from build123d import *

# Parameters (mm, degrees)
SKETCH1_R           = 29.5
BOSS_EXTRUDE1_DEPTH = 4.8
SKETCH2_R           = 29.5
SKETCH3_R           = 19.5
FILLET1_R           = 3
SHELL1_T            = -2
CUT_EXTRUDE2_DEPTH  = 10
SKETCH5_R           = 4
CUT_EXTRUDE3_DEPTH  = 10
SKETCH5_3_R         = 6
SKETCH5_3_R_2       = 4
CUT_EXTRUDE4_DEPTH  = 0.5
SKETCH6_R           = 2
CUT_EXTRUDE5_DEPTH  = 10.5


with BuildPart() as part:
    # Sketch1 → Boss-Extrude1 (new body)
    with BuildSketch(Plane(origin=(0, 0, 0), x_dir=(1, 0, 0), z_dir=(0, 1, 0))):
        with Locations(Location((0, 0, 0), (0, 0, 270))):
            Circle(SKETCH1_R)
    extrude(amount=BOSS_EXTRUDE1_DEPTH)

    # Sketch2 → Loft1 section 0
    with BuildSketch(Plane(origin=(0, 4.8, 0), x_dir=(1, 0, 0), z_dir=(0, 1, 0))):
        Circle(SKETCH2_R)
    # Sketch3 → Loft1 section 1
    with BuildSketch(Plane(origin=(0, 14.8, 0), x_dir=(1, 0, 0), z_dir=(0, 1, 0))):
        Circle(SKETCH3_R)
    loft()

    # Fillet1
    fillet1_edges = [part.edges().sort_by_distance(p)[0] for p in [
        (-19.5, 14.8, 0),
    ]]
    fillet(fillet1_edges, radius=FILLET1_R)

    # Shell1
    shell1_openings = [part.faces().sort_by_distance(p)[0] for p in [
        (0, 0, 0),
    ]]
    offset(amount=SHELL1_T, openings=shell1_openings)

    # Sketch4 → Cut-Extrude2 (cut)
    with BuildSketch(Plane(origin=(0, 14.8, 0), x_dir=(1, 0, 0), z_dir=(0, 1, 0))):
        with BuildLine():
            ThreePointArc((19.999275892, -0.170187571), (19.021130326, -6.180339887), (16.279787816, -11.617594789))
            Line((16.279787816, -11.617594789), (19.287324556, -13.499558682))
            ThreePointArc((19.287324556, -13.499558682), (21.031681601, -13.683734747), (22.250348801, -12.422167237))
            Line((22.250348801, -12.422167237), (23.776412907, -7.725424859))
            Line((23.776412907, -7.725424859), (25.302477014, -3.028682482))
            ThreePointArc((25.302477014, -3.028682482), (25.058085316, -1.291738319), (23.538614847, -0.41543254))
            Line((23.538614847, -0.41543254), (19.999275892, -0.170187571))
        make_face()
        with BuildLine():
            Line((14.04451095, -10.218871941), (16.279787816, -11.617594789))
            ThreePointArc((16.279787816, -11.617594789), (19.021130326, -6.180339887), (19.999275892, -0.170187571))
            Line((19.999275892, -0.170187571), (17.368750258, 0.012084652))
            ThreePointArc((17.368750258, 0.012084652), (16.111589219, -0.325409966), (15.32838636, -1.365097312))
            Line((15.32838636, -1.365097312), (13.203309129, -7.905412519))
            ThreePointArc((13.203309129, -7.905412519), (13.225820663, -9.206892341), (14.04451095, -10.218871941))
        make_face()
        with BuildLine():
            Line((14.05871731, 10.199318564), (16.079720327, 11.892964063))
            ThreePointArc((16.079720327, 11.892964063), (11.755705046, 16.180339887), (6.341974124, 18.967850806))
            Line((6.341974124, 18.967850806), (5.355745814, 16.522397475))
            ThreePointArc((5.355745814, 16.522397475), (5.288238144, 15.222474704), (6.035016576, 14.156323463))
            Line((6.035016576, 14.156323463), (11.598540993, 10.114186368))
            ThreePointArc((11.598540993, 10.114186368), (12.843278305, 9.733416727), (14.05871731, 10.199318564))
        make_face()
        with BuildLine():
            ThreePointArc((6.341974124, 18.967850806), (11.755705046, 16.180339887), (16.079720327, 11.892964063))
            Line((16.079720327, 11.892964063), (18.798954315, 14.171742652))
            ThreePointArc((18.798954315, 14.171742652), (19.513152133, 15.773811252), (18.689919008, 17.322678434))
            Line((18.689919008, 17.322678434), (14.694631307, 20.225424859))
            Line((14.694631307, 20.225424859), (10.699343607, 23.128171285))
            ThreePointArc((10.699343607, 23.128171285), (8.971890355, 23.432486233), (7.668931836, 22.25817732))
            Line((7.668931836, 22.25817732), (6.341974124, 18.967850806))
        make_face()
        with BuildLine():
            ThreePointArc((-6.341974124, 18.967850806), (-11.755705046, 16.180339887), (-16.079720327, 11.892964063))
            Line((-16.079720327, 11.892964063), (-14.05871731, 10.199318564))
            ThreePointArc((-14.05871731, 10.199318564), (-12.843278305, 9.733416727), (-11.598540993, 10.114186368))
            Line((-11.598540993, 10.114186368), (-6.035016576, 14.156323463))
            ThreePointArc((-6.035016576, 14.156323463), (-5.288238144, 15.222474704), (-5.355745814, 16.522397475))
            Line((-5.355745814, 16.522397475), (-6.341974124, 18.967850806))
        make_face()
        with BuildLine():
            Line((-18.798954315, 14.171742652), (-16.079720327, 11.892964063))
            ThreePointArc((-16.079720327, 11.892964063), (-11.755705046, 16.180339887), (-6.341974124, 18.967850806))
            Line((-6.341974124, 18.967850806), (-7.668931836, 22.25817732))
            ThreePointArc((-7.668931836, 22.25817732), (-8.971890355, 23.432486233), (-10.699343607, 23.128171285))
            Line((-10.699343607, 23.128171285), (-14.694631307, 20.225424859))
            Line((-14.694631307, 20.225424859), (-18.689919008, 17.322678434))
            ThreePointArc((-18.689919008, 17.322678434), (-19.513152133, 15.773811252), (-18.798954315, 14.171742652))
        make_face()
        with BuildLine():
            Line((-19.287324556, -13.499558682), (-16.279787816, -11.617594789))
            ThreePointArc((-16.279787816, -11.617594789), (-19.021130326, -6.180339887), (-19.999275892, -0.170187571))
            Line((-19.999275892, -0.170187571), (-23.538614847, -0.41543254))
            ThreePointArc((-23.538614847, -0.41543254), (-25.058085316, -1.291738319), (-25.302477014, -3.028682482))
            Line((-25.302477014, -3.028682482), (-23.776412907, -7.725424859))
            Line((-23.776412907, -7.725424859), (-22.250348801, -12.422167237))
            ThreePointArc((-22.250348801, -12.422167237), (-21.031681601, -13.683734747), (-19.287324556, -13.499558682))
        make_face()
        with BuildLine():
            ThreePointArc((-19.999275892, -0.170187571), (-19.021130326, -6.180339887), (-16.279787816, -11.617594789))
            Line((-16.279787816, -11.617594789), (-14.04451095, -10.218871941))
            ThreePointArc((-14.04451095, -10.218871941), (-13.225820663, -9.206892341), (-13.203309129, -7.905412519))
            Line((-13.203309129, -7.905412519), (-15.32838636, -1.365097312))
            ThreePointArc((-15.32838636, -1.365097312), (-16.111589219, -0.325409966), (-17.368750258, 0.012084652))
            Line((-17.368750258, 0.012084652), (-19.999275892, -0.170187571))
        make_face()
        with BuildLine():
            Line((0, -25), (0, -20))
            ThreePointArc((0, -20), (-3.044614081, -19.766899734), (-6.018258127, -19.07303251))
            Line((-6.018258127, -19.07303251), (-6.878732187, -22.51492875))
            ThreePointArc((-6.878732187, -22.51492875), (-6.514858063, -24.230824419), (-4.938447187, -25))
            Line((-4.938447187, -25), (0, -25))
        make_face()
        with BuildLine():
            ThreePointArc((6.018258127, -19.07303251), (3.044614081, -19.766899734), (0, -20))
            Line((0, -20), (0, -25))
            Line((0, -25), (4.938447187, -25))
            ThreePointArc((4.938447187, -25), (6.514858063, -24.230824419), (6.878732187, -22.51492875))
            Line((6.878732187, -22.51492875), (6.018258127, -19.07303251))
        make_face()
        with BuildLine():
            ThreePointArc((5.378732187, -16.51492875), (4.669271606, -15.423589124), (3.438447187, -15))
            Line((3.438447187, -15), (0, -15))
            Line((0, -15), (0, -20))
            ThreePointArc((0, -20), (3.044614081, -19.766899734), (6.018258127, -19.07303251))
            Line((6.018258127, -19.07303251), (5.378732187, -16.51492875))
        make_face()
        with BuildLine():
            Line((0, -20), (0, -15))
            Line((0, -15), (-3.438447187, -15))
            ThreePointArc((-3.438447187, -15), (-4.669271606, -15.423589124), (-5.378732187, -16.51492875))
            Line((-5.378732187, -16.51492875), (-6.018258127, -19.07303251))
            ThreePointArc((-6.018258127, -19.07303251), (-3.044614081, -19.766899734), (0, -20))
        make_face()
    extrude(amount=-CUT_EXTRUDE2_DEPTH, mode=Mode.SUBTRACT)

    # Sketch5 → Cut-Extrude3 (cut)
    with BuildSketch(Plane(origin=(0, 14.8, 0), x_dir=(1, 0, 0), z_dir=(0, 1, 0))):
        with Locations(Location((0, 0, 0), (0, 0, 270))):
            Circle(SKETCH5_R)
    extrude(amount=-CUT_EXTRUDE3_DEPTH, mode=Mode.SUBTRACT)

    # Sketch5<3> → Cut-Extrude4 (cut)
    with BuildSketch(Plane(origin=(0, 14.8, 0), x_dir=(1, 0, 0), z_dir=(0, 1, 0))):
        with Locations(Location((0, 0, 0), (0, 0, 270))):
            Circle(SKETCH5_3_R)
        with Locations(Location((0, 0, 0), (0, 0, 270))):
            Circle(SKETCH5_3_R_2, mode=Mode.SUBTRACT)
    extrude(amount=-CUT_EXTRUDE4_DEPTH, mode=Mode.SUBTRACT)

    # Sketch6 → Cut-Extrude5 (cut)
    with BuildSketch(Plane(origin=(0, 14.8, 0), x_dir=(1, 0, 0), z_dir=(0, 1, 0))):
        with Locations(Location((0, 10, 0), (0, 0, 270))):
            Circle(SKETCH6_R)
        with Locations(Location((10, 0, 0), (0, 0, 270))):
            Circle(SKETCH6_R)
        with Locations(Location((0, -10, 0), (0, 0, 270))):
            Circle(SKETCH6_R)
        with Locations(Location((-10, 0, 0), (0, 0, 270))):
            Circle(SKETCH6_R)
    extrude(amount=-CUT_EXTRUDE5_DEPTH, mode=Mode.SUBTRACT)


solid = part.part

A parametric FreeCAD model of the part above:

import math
import FreeCAD as App
import Part
import Sketcher
from FreeCAD import Vector
Q = App.Units.Quantity


def edges_at(feature, points):
    """Names of the edges that pass closest to the given points."""
    edges = feature.Shape.Edges
    near = lambda p: min(range(len(edges)), key=lambda i: edges[i].distToShape(Part.Vertex(*p))[0])
    return sorted({f"Edge{near(p) + 1}" for p in points})


def faces_at(feature, points):
    """Names of the faces that lie closest to the given points."""
    faces = feature.Shape.Faces
    near = lambda p: min(range(len(faces)), key=lambda i: faces[i].distToShape(Part.Vertex(*p))[0])
    return sorted({f"Face{near(p) + 1}" for p in points})

doc = App.newDocument("Part")
body = doc.addObject("PartDesign::Body", "Body")

# Sketch on XZ plane
sketch1 = body.newObject("Sketcher::SketchObject", "Sketch")
sketch1.AttachmentSupport = (doc.getObject("XZ_Plane"), [""])
sketch1.MapMode = "FlatFace"
sketch1.addGeometry(Part.Circle(Vector(0, 0, 0), Vector(0, 0, 1), 29.5), False)
sketch1.addConstraint([
    Sketcher.Constraint("Coincident", 0, 3, -1, 1),
    Sketcher.Constraint("Diameter", 0, 59.0),
])
pad1 = body.newObject("PartDesign::Pad", "Pad")
pad1.Profile = sketch1
pad1.Length = 4.8
pad1.Reversed = True

# Sketch on XZ plane
sketch2 = body.newObject("Sketcher::SketchObject", "Sketch001")
sketch2.AttachmentSupport = (doc.getObject("XZ_Plane"), [""])
sketch2.MapMode = "FlatFace"
sketch2.AttachmentOffset = App.Placement(Vector(0, 0, -4.8), App.Rotation())
sketch2.addGeometry(Part.Circle(Vector(0, 0, 0), Vector(0, 0, 1), 29.5), False)
sketch2.addConstraint([
    Sketcher.Constraint("Coincident", 0, 3, -1, 1),
    Sketcher.Constraint("Diameter", 0, 59.0),
])

# Sketch on XZ plane
sketch3 = body.newObject("Sketcher::SketchObject", "Sketch002")
sketch3.AttachmentSupport = (doc.getObject("XZ_Plane"), [""])
sketch3.MapMode = "FlatFace"
sketch3.AttachmentOffset = App.Placement(Vector(0, 0, -14.8), App.Rotation())
sketch3.addGeometry(Part.Circle(Vector(0, 0, 0), Vector(0, 0, 1), 19.5), False)
sketch3.addConstraint([
    Sketcher.Constraint("Coincident", 0, 3, -1, 1),
    Sketcher.Constraint("Diameter", 0, 39.0),
])

additiveloft = body.newObject("PartDesign::AdditiveLoft", "AdditiveLoft")
additiveloft.Profile = sketch2
additiveloft.Sections = [sketch3]
doc.recompute()

fillet = body.newObject("PartDesign::Fillet", "Fillet")
fillet.Base = (additiveloft, edges_at(additiveloft, [(-19.5, 14.8, 0)]))
fillet.Radius = 3
doc.recompute()

thickness = body.newObject("PartDesign::Thickness", "Thickness")
thickness.Base = (fillet, faces_at(fillet, [(0, 0, 0)]))
thickness.Value = 2
thickness.Reversed = True
thickness.Join = "Arc"

# Sketch on XZ plane
sketch4 = body.newObject("Sketcher::SketchObject", "Sketch003")
sketch4.AttachmentSupport = (doc.getObject("XZ_Plane"), [""])
sketch4.MapMode = "FlatFace"
sketch4.AttachmentOffset = App.Placement(Vector(0, 0, -14.8), App.Rotation())
sketch4.addGeometry([
    Part.LineSegment(Vector(16.279788, 11.617595, 0), Vector(19.287325, 13.499559, 0)),  # 0
    Part.ArcOfCircle(Part.Circle(Vector(20.348236, 11.804133, 0), Vector(0, 0, 1), 2), math.radians(18), math.radians(122.036243)),  # 1
    Part.LineSegment(Vector(22.250349, 12.422167, 0), Vector(23.776413, 7.725425, 0)),  # 2
    Part.LineSegment(Vector(23.776413, 7.725425, 0), Vector(25.302477, 3.028682, 0)),  # 3
    Part.ArcOfCircle(Part.Circle(Vector(23.400364, 2.410648, 0), Vector(0, 0, 1), 2), math.radians(-86.036243), math.radians(18)),  # 4
    Part.LineSegment(Vector(23.538615, 0.415433, 0), Vector(19.999276, 0.170188, 0)),  # 5
    Part.LineSegment(Vector(19.999276, 0.170188, 0), Vector(17.36875, -0.012085, 0)),  # 6
    Part.ArcOfCircle(Part.Circle(Vector(17.230499, 1.983131, 0), Vector(0, 0, 1), 2), math.radians(-162), math.radians(-86.036243)),  # 7
    Part.LineSegment(Vector(15.328386, 1.365097, 0), Vector(13.203309, 7.905413, 0)),  # 8
    Part.ArcOfCircle(Part.Circle(Vector(15.105422, 8.523447, 0), Vector(0, 0, 1), 2), math.radians(122.036243), math.radians(198)),  # 9
    Part.LineSegment(Vector(14.044511, 10.218872, 0), Vector(16.279788, 11.617595, 0)),  # 10
    Part.LineSegment(Vector(14.058717, -10.199319, 0), Vector(16.07972, -11.892964, 0)),  # 11
    Part.LineSegment(Vector(16.07972, -11.892964, 0), Vector(18.798954, -14.171743, 0)),  # 12
    Part.ArcOfCircle(Part.Circle(Vector(17.514349, -15.704644, 0), Vector(0, 0, 1), 2), math.radians(-54), math.radians(50.036243)),  # 13
    Part.LineSegment(Vector(18.689919, -17.322678, 0), Vector(14.694631, -20.225425, 0)),  # 14
    Part.LineSegment(Vector(14.694631, -20.225425, 0), Vector(10.699344, -23.128171, 0)),  # 15
    Part.ArcOfCircle(Part.Circle(Vector(9.523773, -21.510137, 0), Vector(0, 0, 1), 2), math.radians(-158.036243), math.radians(-54)),  # 16
    Part.LineSegment(Vector(7.668932, -22.258177, 0), Vector(6.341974, -18.967851, 0)),  # 17
    Part.LineSegment(Vector(6.341974, -18.967851, 0), Vector(5.355746, -16.522397, 0)),  # 18
    Part.ArcOfCircle(Part.Circle(Vector(7.210587, -15.774357, 0), Vector(0, 0, 1), 2), math.radians(126), math.radians(201.963757)),  # 19
    Part.LineSegment(Vector(6.035017, -14.156323, 0), Vector(11.598541, -10.114186, 0)),  # 20
    Part.ArcOfCircle(Part.Circle(Vector(12.774111, -11.73222, 0), Vector(0, 0, 1), 2), math.radians(50.036243), math.radians(126)),  # 21
    Part.LineSegment(Vector(-16.07972, -11.892964, 0), Vector(-14.058717, -10.199319, 0)),  # 22
    Part.ArcOfCircle(Part.Circle(Vector(-12.774111, -11.73222, 0), Vector(0, 0, 1), 2), math.radians(54), math.radians(129.963757)),  # 23
    Part.LineSegment(Vector(-11.598541, -10.114186, 0), Vector(-6.035017, -14.156323, 0)),  # 24
    Part.ArcOfCircle(Part.Circle(Vector(-7.210587, -15.774357, 0), Vector(0, 0, 1), 2), math.radians(-21.963757), math.radians(54)),  # 25
    Part.LineSegment(Vector(-5.355746, -16.522397, 0), Vector(-6.341974, -18.967851, 0)),  # 26
    Part.LineSegment(Vector(-6.341974, -18.967851, 0), Vector(-7.668932, -22.258177, 0)),  # 27
    Part.ArcOfCircle(Part.Circle(Vector(-9.523773, -21.510137, 0), Vector(0, 0, 1), 2), math.radians(-126), math.radians(-21.963757)),  # 28
    Part.LineSegment(Vector(-10.699344, -23.128171, 0), Vector(-14.694631, -20.225425, 0)),  # 29
    Part.LineSegment(Vector(-14.694631, -20.225425, 0), Vector(-18.689919, -17.322678, 0)),  # 30
    Part.ArcOfCircle(Part.Circle(Vector(-17.514349, -15.704644, 0), Vector(0, 0, 1), 2), math.radians(129.963757), math.radians(234)),  # 31
    Part.LineSegment(Vector(-18.798954, -14.171743, 0), Vector(-16.07972, -11.892964, 0)),  # 32
    Part.LineSegment(Vector(-19.287325, 13.499559, 0), Vector(-16.279788, 11.617595, 0)),  # 33
    Part.LineSegment(Vector(-16.279788, 11.617595, 0), Vector(-14.044511, 10.218872, 0)),  # 34
    Part.ArcOfCircle(Part.Circle(Vector(-15.105422, 8.523447, 0), Vector(0, 0, 1), 2), math.radians(-18), math.radians(57.963757)),  # 35
    Part.LineSegment(Vector(-13.203309, 7.905413, 0), Vector(-15.328386, 1.365097, 0)),  # 36
    Part.ArcOfCircle(Part.Circle(Vector(-17.230499, 1.983131, 0), Vector(0, 0, 1), 2), math.radians(-93.963757), math.radians(-18)),  # 37
    Part.LineSegment(Vector(-17.36875, -0.012085, 0), Vector(-19.999276, 0.170188, 0)),  # 38
    Part.LineSegment(Vector(-19.999276, 0.170188, 0), Vector(-23.538615, 0.415433, 0)),  # 39
    Part.ArcOfCircle(Part.Circle(Vector(-23.400364, 2.410648, 0), Vector(0, 0, 1), 2), math.radians(162), math.radians(266.036243)),  # 40
    Part.LineSegment(Vector(-25.302477, 3.028682, 0), Vector(-23.776413, 7.725425, 0)),  # 41
    Part.LineSegment(Vector(-23.776413, 7.725425, 0), Vector(-22.250349, 12.422167, 0)),  # 42
    Part.ArcOfCircle(Part.Circle(Vector(-20.348236, 11.804133, 0), Vector(0, 0, 1), 2), math.radians(57.963757), math.radians(162)),  # 43
    Part.ArcOfCircle(Part.Circle(Vector(-4.938447, 23, 0), Vector(0, 0, 1), 2), math.radians(90), math.radians(194.036243)),  # 44
    Part.LineSegment(Vector(-4.938447, 25, 0), Vector(4.938447, 25, 0)),  # 45
    Part.ArcOfCircle(Part.Circle(Vector(4.938447, 23, 0), Vector(0, 0, 1), 2), math.radians(-14.036243), math.radians(90)),  # 46
    Part.LineSegment(Vector(6.878732, 22.514929, 0), Vector(5.378732, 16.514929, 0)),  # 47
    Part.ArcOfCircle(Part.Circle(Vector(3.438447, 17, 0), Vector(0, 0, 1), 2), math.radians(-90), math.radians(-14.036243)),  # 48
    Part.LineSegment(Vector(3.438447, 15, 0), Vector(-3.438447, 15, 0)),  # 49
    Part.ArcOfCircle(Part.Circle(Vector(-3.438447, 17, 0), Vector(0, 0, 1), 2), math.radians(-165.963757), math.radians(-90)),  # 50
    Part.LineSegment(Vector(-5.378732, 16.514929, 0), Vector(-6.878732, 22.514929, 0)),  # 51
], False)
sketch4.addConstraint([
    Sketcher.Constraint("Tangent", 0, 2, 1, 2),
    Sketcher.Constraint("Tangent", 1, 1, 2, 1),
    Sketcher.Constraint("Coincident", 2, 2, 3, 1),
    Sketcher.Constraint("Tangent", 3, 2, 4, 2),
    Sketcher.Constraint("Tangent", 4, 1, 5, 1),
    Sketcher.Constraint("Coincident", 5, 2, 6, 1),
    Sketcher.Constraint("Tangent", 6, 2, 7, 2),
    Sketcher.Constraint("Tangent", 7, 1, 8, 1),
    Sketcher.Constraint("Tangent", 8, 2, 9, 2),
    Sketcher.Constraint("Tangent", 9, 1, 10, 1),
    Sketcher.Constraint("Coincident", 10, 2, 0, 1),
    Sketcher.Constraint("Coincident", 11, 2, 12, 1),
    Sketcher.Constraint("Tangent", 12, 2, 13, 2),
    Sketcher.Constraint("Tangent", 13, 1, 14, 1),
    Sketcher.Constraint("Coincident", 14, 2, 15, 1),
    Sketcher.Constraint("Tangent", 15, 2, 16, 2),
    Sketcher.Constraint("Tangent", 16, 1, 17, 1),
    Sketcher.Constraint("Coincident", 17, 2, 18, 1),
    Sketcher.Constraint("Tangent", 18, 2, 19, 2),
    Sketcher.Constraint("Tangent", 19, 1, 20, 1),
    Sketcher.Constraint("Tangent", 20, 2, 21, 2),
    Sketcher.Constraint("Tangent", 21, 1, 11, 1),
    Sketcher.Constraint("Tangent", 22, 2, 23, 2),
    Sketcher.Constraint("Tangent", 23, 1, 24, 1),
    Sketcher.Constraint("Tangent", 24, 2, 25, 2),
    Sketcher.Constraint("Tangent", 25, 1, 26, 1),
    Sketcher.Constraint("Coincident", 26, 2, 27, 1),
    Sketcher.Constraint("Tangent", 27, 2, 28, 2),
    Sketcher.Constraint("Tangent", 28, 1, 29, 1),
    Sketcher.Constraint("Coincident", 29, 2, 30, 1),
    Sketcher.Constraint("Tangent", 30, 2, 31, 2),
    Sketcher.Constraint("Tangent", 31, 1, 32, 1),
    Sketcher.Constraint("Coincident", 32, 2, 22, 1),
    Sketcher.Constraint("Coincident", 33, 2, 34, 1),
    Sketcher.Constraint("Tangent", 34, 2, 35, 2),
    Sketcher.Constraint("Tangent", 35, 1, 36, 1),
    Sketcher.Constraint("Tangent", 36, 2, 37, 2),
    Sketcher.Constraint("Tangent", 37, 1, 38, 1),
    Sketcher.Constraint("Coincident", 38, 2, 39, 1),
    Sketcher.Constraint("Tangent", 39, 2, 40, 2),
    Sketcher.Constraint("Tangent", 40, 1, 41, 1),
    Sketcher.Constraint("Coincident", 41, 2, 42, 1),
    Sketcher.Constraint("Tangent", 42, 2, 43, 2),
    Sketcher.Constraint("Tangent", 43, 1, 33, 1),
    Sketcher.Constraint("Tangent", 44, 1, 45, 1),
    Sketcher.Constraint("Tangent", 45, 2, 46, 2),
    Sketcher.Constraint("Tangent", 46, 1, 47, 1),
    Sketcher.Constraint("Tangent", 47, 2, 48, 2),
    Sketcher.Constraint("Tangent", 48, 1, 49, 1),
    Sketcher.Constraint("Tangent", 49, 2, 50, 2),
    Sketcher.Constraint("Tangent", 50, 1, 51, 1),
    Sketcher.Constraint("Tangent", 51, 2, 44, 2),
    Sketcher.Constraint("Horizontal", 45),
    Sketcher.Constraint("Horizontal", 49),
    Sketcher.Constraint("Equal", 1, 4),
    Sketcher.Constraint("Equal", 4, 7),
    Sketcher.Constraint("Equal", 7, 9),
    Sketcher.Constraint("Equal", 9, 13),
    Sketcher.Constraint("Equal", 13, 16),
    Sketcher.Constraint("Equal", 16, 19),
    Sketcher.Constraint("Equal", 19, 21),
    Sketcher.Constraint("Equal", 21, 23),
    Sketcher.Constraint("Equal", 23, 25),
    Sketcher.Constraint("Equal", 25, 28),
    Sketcher.Constraint("Equal", 28, 31),
    Sketcher.Constraint("Equal", 31, 35),
    Sketcher.Constraint("Equal", 35, 37),
    Sketcher.Constraint("Equal", 37, 40),
    Sketcher.Constraint("Equal", 40, 43),
    Sketcher.Constraint("Equal", 43, 44),
    Sketcher.Constraint("Equal", 44, 46),
    Sketcher.Constraint("Equal", 46, 48),
    Sketcher.Constraint("Equal", 48, 50),
    Sketcher.Constraint("Symmetric", 21, 3, 23, 3, -2),
    Sketcher.Constraint("Symmetric", 19, 3, 25, 3, -2),
    Sketcher.Constraint("Symmetric", 16, 3, 28, 3, -2),
    Sketcher.Constraint("Symmetric", 13, 3, 31, 3, -2),
    Sketcher.Constraint("Symmetric", 9, 3, 35, 3, -2),
    Sketcher.Constraint("Symmetric", 7, 3, 37, 3, -2),
    Sketcher.Constraint("Symmetric", 4, 3, 40, 3, -2),
    Sketcher.Constraint("Symmetric", 1, 3, 43, 3, -2),
    Sketcher.Constraint("Symmetric", 17, 2, 26, 2, -2),
    Sketcher.Constraint("Symmetric", 14, 2, 29, 2, -2),
    Sketcher.Constraint("Symmetric", 11, 2, 32, 2, -2),
    Sketcher.Constraint("Symmetric", 10, 2, 33, 2, -2),
    Sketcher.Constraint("Symmetric", 5, 2, 38, 2, -2),
    Sketcher.Constraint("Symmetric", 2, 2, 41, 2, -2),
    Sketcher.Constraint("Symmetric", 47, 2, 50, 1, -2),
    Sketcher.Constraint("Parallel", 2, 3),
    Sketcher.Constraint("Parallel", 5, 6),
    Sketcher.Constraint("Parallel", 3, 8),
    Sketcher.Constraint("Parallel", 0, 10),
    Sketcher.Constraint("Parallel", 11, 12),
    Sketcher.Constraint("Parallel", 14, 15),
    Sketcher.Constraint("Parallel", 17, 18),
    Sketcher.Constraint("Parallel", 15, 20),
    Sketcher.Constraint("Equal", 2, 3),
    Sketcher.Constraint("Equal", 0, 5),
    Sketcher.Constraint("Equal", 6, 10),
    Sketcher.Constraint("Equal", 10, 11),
    Sketcher.Constraint("Equal", 5, 12),
    Sketcher.Constraint("Equal", 3, 14),
    Sketcher.Constraint("Equal", 14, 15),
    Sketcher.Constraint("Equal", 12, 17),
    Sketcher.Constraint("Equal", 11, 18),
    Sketcher.Constraint("Equal", 8, 20),
    Sketcher.Constraint("Radius", 1, 2.0),
    Sketcher.Constraint("Angle", 2, Q("-72 deg")),
    Sketcher.Constraint("Angle", 14, Q("-144 deg")),
    Sketcher.Constraint("DistanceY", -1, 1, 44, 3, 23.0),
    Sketcher.Constraint("DistanceY", -1, 1, 48, 3, 17.0),
    Sketcher.Constraint("DistanceX", -1, 1, 7, 3, 17.230499),
    Sketcher.Constraint("Distance", 47, 6.184658),
    Sketcher.Constraint("DistanceX", 45, 1, 45, 2, 9.876894),
    Sketcher.Constraint("DistanceY", -1, 1, 4, 3, 2.410648),
    Sketcher.Constraint("DistanceY", -1, 1, 7, 3, 1.983131),
    Sketcher.Constraint("DistanceX", -1, 1, 13, 3, 17.514349),
    Sketcher.Constraint("DistanceX", -1, 1, 21, 3, 12.774111),
    Sketcher.Constraint("DistanceY", 21, 3, -1, 1, 11.73222),
    Sketcher.Constraint("DistanceY", -1, 1, 0, 2, 13.499559),
    Sketcher.Constraint("DistanceX", -1, 1, 11, 2, 16.07972),
])
pocket1 = body.newObject("PartDesign::Pocket", "Pocket")
pocket1.Profile = sketch4
pocket1.Length = 10
pocket1.Reversed = True

# Sketch on XZ plane
sketch5 = body.newObject("Sketcher::SketchObject", "Sketch004")
sketch5.AttachmentSupport = (doc.getObject("XZ_Plane"), [""])
sketch5.MapMode = "FlatFace"
sketch5.AttachmentOffset = App.Placement(Vector(0, 0, -14.8), App.Rotation())
sketch5.addGeometry(Part.Circle(Vector(0, 0, 0), Vector(0, 0, 1), 4), False)
sketch5.addConstraint([
    Sketcher.Constraint("Coincident", 0, 3, -1, 1),
    Sketcher.Constraint("Diameter", 0, 8.0),
])
pocket2 = body.newObject("PartDesign::Pocket", "Pocket001")
pocket2.Profile = sketch5
pocket2.Length = 10
pocket2.Reversed = True

# Sketch on XZ plane
sketch6 = body.newObject("Sketcher::SketchObject", "Sketch005")
sketch6.AttachmentSupport = (doc.getObject("XZ_Plane"), [""])
sketch6.MapMode = "FlatFace"
sketch6.AttachmentOffset = App.Placement(Vector(0, 0, -14.8), App.Rotation())
sketch6.addGeometry([
    Part.Circle(Vector(0, 0, 0), Vector(0, 0, 1), 6),
    Part.Circle(Vector(0, 0, 0), Vector(0, 0, 1), 4),
], False)
sketch6.addConstraint([
    Sketcher.Constraint("Coincident", 0, 3, -1, 1),
    Sketcher.Constraint("Coincident", 1, 3, -1, 1),
    Sketcher.Constraint("Diameter", 0, 12.0),
    Sketcher.Constraint("Diameter", 1, 8.0),
])
pocket3 = body.newObject("PartDesign::Pocket", "Pocket002")
pocket3.Profile = sketch6
pocket3.Length = 0.5
pocket3.Reversed = True

# Sketch on XZ plane
sketch7 = body.newObject("Sketcher::SketchObject", "Sketch006")
sketch7.AttachmentSupport = (doc.getObject("XZ_Plane"), [""])
sketch7.MapMode = "FlatFace"
sketch7.AttachmentOffset = App.Placement(Vector(0, 0, -14.8), App.Rotation())
sketch7.addGeometry([
    Part.Circle(Vector(0, -10, 0), Vector(0, 0, 1), 2),
    Part.Circle(Vector(10, 0, 0), Vector(0, 0, 1), 2),
    Part.Circle(Vector(0, 10, 0), Vector(0, 0, 1), 2),
    Part.Circle(Vector(-10, 0, 0), Vector(0, 0, 1), 2),
], False)
sketch7.addConstraint([
    Sketcher.Constraint("Equal", 0, 1),
    Sketcher.Constraint("Equal", 1, 2),
    Sketcher.Constraint("Equal", 2, 3),
    Sketcher.Constraint("Symmetric", 0, 3, 2, 3, -1, 1),
    Sketcher.Constraint("Symmetric", 1, 3, 3, 3, -1, 1),
    Sketcher.Constraint("PointOnObject", 0, 3, -2),
    Sketcher.Constraint("PointOnObject", 1, 3, -1),
    Sketcher.Constraint("Diameter", 0, 4.0),
    Sketcher.Constraint("DistanceY", 0, 3, -1, 1, 10.0),
    Sketcher.Constraint("DistanceX", -1, 1, 1, 3, 10.0),
])
pocket4 = body.newObject("PartDesign::Pocket", "Pocket003")
pocket4.Profile = sketch7
pocket4.Length = 10.5
pocket4.Reversed = True

doc.recompute()
